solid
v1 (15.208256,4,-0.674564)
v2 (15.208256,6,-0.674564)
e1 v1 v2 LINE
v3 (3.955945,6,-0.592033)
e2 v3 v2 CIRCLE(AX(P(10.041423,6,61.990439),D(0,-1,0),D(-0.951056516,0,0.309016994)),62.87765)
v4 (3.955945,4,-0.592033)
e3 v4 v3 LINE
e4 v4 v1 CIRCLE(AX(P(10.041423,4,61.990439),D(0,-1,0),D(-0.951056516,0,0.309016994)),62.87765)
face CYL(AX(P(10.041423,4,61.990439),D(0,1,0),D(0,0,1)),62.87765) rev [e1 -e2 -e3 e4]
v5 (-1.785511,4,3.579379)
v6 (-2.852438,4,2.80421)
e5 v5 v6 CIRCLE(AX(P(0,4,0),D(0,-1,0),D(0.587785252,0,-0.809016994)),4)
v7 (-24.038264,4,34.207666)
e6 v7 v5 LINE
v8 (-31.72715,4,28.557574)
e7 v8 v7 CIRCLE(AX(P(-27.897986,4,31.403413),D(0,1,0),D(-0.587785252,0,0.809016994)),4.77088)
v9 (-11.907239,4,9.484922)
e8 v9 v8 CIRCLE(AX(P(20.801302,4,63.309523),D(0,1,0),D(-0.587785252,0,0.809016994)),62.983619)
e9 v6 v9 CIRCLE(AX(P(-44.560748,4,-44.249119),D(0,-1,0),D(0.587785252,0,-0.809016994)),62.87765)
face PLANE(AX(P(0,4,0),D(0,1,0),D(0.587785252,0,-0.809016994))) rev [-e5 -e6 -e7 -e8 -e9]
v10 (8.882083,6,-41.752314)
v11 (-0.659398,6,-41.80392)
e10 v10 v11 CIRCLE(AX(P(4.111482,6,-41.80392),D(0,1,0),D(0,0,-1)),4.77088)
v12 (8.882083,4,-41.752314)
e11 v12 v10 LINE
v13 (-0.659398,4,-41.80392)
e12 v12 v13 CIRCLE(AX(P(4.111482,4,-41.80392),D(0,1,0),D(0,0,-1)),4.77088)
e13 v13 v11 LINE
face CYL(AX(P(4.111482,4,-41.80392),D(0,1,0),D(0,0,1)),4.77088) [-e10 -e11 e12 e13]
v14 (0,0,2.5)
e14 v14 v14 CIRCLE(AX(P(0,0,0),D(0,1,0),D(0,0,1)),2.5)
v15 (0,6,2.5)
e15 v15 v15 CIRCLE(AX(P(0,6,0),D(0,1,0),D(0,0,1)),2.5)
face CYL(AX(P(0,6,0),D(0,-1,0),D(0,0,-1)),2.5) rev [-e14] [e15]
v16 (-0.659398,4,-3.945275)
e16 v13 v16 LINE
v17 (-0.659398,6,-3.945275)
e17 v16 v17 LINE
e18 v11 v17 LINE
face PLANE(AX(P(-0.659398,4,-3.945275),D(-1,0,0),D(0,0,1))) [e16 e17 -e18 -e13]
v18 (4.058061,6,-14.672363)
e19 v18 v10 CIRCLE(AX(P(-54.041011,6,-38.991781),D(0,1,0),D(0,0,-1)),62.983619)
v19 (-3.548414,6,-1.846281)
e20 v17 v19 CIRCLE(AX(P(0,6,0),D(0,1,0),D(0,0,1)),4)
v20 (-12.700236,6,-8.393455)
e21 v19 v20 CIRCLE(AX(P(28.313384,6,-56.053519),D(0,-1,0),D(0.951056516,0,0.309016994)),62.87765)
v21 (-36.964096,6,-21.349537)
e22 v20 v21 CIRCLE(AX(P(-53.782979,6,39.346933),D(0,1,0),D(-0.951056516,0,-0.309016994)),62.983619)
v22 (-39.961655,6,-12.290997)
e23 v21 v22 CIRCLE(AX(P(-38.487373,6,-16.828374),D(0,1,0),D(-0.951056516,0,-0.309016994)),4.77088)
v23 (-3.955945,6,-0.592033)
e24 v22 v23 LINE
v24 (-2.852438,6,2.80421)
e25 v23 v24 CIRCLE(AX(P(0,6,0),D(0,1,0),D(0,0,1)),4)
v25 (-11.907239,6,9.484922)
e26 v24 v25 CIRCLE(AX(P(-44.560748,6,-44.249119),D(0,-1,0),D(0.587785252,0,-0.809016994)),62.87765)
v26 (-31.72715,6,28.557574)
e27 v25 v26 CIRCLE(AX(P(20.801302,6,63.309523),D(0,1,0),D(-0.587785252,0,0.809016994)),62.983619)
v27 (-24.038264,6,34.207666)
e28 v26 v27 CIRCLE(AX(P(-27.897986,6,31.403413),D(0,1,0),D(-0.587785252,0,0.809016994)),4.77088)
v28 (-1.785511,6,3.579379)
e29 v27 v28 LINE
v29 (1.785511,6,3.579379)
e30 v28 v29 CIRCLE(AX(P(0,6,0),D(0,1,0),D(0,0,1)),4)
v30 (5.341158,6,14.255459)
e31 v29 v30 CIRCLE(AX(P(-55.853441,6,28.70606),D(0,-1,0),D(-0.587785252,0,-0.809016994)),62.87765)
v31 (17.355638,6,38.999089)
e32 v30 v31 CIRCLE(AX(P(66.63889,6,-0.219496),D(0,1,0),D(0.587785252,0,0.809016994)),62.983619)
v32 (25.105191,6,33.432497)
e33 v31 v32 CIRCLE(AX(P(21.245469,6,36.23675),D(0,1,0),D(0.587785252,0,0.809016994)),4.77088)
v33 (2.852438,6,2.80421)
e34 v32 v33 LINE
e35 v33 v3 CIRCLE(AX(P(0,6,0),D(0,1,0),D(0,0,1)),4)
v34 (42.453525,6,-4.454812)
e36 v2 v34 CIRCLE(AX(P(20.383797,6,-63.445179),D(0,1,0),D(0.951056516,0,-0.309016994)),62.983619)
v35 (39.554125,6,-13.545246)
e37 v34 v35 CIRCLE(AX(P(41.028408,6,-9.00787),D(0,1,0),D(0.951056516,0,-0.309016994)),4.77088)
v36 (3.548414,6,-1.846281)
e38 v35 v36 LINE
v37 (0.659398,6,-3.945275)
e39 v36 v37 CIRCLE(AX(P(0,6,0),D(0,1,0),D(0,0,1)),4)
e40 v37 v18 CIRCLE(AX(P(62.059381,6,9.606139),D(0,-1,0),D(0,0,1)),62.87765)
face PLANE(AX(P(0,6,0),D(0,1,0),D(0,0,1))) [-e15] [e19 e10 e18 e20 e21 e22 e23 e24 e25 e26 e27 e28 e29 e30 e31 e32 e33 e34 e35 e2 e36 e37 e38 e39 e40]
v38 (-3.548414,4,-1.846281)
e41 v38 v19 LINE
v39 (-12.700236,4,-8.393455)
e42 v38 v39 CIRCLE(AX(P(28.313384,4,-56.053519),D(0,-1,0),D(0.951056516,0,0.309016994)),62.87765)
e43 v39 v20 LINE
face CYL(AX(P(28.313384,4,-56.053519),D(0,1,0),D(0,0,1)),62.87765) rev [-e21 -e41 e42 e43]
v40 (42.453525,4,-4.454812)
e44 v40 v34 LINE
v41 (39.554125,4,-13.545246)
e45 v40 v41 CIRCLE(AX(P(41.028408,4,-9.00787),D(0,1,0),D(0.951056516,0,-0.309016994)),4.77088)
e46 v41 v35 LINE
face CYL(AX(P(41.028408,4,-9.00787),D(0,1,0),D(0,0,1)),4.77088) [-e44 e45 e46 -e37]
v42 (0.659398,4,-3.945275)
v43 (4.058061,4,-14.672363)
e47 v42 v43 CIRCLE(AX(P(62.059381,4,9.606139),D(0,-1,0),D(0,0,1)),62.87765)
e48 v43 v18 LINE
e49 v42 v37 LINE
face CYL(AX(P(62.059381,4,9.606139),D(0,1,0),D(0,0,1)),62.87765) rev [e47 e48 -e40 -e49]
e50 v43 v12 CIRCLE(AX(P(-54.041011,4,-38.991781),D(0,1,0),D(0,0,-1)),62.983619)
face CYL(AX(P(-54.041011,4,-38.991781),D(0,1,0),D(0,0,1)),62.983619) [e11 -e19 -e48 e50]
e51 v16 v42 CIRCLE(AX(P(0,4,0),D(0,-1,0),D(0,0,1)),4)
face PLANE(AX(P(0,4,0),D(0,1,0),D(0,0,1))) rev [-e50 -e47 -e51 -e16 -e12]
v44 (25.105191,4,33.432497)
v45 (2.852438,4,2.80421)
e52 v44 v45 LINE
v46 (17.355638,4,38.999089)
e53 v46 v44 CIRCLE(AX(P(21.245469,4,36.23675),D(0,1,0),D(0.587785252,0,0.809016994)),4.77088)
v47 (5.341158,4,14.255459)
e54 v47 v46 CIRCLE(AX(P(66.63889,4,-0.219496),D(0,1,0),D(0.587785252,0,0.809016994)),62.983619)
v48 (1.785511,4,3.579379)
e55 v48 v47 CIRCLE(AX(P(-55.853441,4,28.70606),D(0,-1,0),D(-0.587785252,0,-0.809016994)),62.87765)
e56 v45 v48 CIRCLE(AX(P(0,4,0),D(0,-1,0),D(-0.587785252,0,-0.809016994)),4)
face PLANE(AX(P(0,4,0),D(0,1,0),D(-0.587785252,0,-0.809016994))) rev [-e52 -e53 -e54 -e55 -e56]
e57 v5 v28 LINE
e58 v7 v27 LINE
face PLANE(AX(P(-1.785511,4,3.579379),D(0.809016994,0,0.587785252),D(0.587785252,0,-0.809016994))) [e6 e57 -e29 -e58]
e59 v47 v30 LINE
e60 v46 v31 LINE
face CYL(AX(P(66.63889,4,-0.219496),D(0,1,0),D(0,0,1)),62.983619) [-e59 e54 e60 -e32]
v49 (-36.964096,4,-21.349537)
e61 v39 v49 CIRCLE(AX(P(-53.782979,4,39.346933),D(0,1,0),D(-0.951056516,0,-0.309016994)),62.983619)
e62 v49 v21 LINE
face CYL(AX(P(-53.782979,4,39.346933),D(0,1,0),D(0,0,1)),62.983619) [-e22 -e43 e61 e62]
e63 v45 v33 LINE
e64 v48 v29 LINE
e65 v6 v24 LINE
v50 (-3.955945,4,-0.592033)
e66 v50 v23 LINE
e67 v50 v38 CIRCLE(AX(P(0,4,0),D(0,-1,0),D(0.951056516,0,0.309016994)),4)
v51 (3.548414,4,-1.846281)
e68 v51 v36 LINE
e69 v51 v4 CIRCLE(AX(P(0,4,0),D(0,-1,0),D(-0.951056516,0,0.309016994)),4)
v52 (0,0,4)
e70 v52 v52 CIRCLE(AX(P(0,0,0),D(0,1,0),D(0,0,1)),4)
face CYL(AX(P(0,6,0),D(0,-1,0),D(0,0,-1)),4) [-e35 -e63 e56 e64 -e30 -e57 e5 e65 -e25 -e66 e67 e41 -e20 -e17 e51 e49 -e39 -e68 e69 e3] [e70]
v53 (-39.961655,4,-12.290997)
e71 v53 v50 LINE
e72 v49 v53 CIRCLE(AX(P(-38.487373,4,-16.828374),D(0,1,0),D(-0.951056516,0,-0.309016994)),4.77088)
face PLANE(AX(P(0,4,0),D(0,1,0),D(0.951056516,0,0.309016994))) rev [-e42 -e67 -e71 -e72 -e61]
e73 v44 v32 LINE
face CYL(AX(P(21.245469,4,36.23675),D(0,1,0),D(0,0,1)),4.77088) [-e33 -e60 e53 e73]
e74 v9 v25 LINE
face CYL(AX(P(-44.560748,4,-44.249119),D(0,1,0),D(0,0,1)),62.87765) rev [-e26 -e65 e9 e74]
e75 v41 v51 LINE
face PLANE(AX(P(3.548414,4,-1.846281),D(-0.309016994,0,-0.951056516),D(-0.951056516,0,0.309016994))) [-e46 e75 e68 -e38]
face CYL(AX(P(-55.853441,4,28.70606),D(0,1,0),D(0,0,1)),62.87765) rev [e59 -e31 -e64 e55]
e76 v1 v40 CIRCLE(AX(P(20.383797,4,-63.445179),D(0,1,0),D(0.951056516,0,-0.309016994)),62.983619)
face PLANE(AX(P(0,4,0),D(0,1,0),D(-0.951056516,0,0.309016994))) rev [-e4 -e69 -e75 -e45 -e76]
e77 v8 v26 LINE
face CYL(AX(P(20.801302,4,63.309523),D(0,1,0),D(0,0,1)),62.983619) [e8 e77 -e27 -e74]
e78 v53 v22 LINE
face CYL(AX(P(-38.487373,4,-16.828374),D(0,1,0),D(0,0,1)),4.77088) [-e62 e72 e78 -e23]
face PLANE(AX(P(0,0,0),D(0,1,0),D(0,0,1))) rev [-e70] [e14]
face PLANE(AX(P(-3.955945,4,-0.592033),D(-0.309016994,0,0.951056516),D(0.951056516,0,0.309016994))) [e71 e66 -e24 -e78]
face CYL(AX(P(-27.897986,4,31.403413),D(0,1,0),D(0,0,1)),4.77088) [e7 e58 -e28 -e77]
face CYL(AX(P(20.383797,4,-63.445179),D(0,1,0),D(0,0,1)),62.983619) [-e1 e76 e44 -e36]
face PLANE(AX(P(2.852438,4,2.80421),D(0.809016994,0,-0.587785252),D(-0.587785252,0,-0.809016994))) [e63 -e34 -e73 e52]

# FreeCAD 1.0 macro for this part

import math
import FreeCAD as App
import Part
import Sketcher

V = App.Vector

doc = App.newDocument("Part")
body = doc.addObject("PartDesign::Body", "Body")

sketch1 = body.newObject("Sketcher::SketchObject", "Sketch")
sketch1.AttachmentSupport = (doc.getObject("XZ_Plane"), [""])
sketch1.MapMode = "FlatFace"
sketch1.addGeometry(Part.Circle(V(0, 0, 0), V(0, 0, 1), 4), False)
sketch1.addGeometry(Part.Circle(V(0, 0, 0), V(0, 0, 1), 2.5), False)
sketch1.addConstraint(Sketcher.Constraint("Coincident", 0, 3, -1, 1))
sketch1.addConstraint(Sketcher.Constraint("Coincident", 1, 3, -1, 1))
sketch1.addConstraint(Sketcher.Constraint("Diameter", 0, 8.0))
sketch1.addConstraint(Sketcher.Constraint("Diameter", 1, 5.0))
pad1 = body.newObject("PartDesign::Pad", "Pad")
pad1.Profile = sketch1
pad1.Length = 6
pad1.Reversed = True

sketch2 = body.newObject("Sketcher::SketchObject", "Sketch001")
sketch2.AttachmentSupport = (doc.getObject("XZ_Plane"), [""])
sketch2.MapMode = "FlatFace"
sketch2.AttachmentOffset = App.Placement(V(0, 0, -6), App.Rotation())
sketch2.addGeometry(Part.LineSegment(V(-0.659398, -41.80392, 0), V(-0.659398, -3.945275, 0)), False)
sketch2.addGeometry(Part.ArcOfCircle(Part.Circle(V(0, 0, 0), V(0, 0, 1), 4), math.radians(-99.488486), math.radians(-80.511514)), False)
sketch2.addGeometry(Part.ArcOfCircle(Part.Circle(V(62.059381, 9.606139, 0), V(0, 0, 1), 62.87765), math.radians(-167.553942), math.radians(-157.28653)), False)
sketch2.addGeometry(Part.ArcOfCircle(Part.Circle(V(-54.041011, -38.991781, 0), V(0, 0, 1), 62.983619), math.radians(-2.512043), math.radians(22.71347)), False)
sketch2.addGeometry(Part.ArcOfCircle(Part.Circle(V(4.111482, -41.80392, 0), V(0, 0, 1), 4.77088), math.radians(180), math.radians(360.619773)), False)
sketch2.addConstraint(Sketcher.Constraint("Coincident", 0, 2, 1, 1))
sketch2.addConstraint(Sketcher.Constraint("Coincident", 1, 2, 2, 1))
sketch2.addConstraint(Sketcher.Constraint("Coincident", 2, 2, 3, 2))
sketch2.addConstraint(Sketcher.Constraint("Coincident", 3, 1, 4, 2))
sketch2.addConstraint(Sketcher.Constraint("Coincident", 4, 1, 0, 1))
sketch2.addConstraint(Sketcher.Constraint("Vertical", 0))
sketch2.addConstraint(Sketcher.Constraint("Coincident", 1, 3, -1, 1))
sketch2.addConstraint(Sketcher.Constraint("Radius", 1, 4.0))
sketch2.addConstraint(Sketcher.Constraint("Radius", 2, 62.87765))
sketch2.addConstraint(Sketcher.Constraint("Radius", 3, 62.983619))
sketch2.addConstraint(Sketcher.Constraint("Radius", 4, 4.77088))
sketch2.addConstraint(Sketcher.Constraint("DistanceX", 4, 3, 2, 3, 57.947899))
sketch2.addConstraint(Sketcher.Constraint("DistanceY", 2, 2, 2, 3, 24.278501))
sketch2.addConstraint(Sketcher.Constraint("DistanceX", 4, 3, 3, 1, 4.770601))
sketch2.addConstraint(Sketcher.Constraint("DistanceY", 0, 1, 0, 2, 37.858645))
sketch2.addConstraint(Sketcher.Constraint("DistanceX", -1, 1, 2, 3, 62.059381))
sketch2.addConstraint(Sketcher.Constraint("DistanceY", -1, 1, 2, 3, 9.606139))
sketch2.addConstraint(Sketcher.Constraint("DistanceX", 3, 3, -1, 1, 54.041011))
pad2 = body.newObject("PartDesign::Pad", "Pad001")
pad2.Profile = sketch2
pad2.Length = 2
doc.recompute()

polarpattern = body.newObject("PartDesign::PolarPattern", "PolarPattern")
polarpattern.Originals = [pad2]
polarpattern.Axis = (doc.getObject("Y_Axis"), [""])
polarpattern.Angle = 360
polarpattern.Occurrences = 5
body.Tip = polarpattern

doc.recompute()
